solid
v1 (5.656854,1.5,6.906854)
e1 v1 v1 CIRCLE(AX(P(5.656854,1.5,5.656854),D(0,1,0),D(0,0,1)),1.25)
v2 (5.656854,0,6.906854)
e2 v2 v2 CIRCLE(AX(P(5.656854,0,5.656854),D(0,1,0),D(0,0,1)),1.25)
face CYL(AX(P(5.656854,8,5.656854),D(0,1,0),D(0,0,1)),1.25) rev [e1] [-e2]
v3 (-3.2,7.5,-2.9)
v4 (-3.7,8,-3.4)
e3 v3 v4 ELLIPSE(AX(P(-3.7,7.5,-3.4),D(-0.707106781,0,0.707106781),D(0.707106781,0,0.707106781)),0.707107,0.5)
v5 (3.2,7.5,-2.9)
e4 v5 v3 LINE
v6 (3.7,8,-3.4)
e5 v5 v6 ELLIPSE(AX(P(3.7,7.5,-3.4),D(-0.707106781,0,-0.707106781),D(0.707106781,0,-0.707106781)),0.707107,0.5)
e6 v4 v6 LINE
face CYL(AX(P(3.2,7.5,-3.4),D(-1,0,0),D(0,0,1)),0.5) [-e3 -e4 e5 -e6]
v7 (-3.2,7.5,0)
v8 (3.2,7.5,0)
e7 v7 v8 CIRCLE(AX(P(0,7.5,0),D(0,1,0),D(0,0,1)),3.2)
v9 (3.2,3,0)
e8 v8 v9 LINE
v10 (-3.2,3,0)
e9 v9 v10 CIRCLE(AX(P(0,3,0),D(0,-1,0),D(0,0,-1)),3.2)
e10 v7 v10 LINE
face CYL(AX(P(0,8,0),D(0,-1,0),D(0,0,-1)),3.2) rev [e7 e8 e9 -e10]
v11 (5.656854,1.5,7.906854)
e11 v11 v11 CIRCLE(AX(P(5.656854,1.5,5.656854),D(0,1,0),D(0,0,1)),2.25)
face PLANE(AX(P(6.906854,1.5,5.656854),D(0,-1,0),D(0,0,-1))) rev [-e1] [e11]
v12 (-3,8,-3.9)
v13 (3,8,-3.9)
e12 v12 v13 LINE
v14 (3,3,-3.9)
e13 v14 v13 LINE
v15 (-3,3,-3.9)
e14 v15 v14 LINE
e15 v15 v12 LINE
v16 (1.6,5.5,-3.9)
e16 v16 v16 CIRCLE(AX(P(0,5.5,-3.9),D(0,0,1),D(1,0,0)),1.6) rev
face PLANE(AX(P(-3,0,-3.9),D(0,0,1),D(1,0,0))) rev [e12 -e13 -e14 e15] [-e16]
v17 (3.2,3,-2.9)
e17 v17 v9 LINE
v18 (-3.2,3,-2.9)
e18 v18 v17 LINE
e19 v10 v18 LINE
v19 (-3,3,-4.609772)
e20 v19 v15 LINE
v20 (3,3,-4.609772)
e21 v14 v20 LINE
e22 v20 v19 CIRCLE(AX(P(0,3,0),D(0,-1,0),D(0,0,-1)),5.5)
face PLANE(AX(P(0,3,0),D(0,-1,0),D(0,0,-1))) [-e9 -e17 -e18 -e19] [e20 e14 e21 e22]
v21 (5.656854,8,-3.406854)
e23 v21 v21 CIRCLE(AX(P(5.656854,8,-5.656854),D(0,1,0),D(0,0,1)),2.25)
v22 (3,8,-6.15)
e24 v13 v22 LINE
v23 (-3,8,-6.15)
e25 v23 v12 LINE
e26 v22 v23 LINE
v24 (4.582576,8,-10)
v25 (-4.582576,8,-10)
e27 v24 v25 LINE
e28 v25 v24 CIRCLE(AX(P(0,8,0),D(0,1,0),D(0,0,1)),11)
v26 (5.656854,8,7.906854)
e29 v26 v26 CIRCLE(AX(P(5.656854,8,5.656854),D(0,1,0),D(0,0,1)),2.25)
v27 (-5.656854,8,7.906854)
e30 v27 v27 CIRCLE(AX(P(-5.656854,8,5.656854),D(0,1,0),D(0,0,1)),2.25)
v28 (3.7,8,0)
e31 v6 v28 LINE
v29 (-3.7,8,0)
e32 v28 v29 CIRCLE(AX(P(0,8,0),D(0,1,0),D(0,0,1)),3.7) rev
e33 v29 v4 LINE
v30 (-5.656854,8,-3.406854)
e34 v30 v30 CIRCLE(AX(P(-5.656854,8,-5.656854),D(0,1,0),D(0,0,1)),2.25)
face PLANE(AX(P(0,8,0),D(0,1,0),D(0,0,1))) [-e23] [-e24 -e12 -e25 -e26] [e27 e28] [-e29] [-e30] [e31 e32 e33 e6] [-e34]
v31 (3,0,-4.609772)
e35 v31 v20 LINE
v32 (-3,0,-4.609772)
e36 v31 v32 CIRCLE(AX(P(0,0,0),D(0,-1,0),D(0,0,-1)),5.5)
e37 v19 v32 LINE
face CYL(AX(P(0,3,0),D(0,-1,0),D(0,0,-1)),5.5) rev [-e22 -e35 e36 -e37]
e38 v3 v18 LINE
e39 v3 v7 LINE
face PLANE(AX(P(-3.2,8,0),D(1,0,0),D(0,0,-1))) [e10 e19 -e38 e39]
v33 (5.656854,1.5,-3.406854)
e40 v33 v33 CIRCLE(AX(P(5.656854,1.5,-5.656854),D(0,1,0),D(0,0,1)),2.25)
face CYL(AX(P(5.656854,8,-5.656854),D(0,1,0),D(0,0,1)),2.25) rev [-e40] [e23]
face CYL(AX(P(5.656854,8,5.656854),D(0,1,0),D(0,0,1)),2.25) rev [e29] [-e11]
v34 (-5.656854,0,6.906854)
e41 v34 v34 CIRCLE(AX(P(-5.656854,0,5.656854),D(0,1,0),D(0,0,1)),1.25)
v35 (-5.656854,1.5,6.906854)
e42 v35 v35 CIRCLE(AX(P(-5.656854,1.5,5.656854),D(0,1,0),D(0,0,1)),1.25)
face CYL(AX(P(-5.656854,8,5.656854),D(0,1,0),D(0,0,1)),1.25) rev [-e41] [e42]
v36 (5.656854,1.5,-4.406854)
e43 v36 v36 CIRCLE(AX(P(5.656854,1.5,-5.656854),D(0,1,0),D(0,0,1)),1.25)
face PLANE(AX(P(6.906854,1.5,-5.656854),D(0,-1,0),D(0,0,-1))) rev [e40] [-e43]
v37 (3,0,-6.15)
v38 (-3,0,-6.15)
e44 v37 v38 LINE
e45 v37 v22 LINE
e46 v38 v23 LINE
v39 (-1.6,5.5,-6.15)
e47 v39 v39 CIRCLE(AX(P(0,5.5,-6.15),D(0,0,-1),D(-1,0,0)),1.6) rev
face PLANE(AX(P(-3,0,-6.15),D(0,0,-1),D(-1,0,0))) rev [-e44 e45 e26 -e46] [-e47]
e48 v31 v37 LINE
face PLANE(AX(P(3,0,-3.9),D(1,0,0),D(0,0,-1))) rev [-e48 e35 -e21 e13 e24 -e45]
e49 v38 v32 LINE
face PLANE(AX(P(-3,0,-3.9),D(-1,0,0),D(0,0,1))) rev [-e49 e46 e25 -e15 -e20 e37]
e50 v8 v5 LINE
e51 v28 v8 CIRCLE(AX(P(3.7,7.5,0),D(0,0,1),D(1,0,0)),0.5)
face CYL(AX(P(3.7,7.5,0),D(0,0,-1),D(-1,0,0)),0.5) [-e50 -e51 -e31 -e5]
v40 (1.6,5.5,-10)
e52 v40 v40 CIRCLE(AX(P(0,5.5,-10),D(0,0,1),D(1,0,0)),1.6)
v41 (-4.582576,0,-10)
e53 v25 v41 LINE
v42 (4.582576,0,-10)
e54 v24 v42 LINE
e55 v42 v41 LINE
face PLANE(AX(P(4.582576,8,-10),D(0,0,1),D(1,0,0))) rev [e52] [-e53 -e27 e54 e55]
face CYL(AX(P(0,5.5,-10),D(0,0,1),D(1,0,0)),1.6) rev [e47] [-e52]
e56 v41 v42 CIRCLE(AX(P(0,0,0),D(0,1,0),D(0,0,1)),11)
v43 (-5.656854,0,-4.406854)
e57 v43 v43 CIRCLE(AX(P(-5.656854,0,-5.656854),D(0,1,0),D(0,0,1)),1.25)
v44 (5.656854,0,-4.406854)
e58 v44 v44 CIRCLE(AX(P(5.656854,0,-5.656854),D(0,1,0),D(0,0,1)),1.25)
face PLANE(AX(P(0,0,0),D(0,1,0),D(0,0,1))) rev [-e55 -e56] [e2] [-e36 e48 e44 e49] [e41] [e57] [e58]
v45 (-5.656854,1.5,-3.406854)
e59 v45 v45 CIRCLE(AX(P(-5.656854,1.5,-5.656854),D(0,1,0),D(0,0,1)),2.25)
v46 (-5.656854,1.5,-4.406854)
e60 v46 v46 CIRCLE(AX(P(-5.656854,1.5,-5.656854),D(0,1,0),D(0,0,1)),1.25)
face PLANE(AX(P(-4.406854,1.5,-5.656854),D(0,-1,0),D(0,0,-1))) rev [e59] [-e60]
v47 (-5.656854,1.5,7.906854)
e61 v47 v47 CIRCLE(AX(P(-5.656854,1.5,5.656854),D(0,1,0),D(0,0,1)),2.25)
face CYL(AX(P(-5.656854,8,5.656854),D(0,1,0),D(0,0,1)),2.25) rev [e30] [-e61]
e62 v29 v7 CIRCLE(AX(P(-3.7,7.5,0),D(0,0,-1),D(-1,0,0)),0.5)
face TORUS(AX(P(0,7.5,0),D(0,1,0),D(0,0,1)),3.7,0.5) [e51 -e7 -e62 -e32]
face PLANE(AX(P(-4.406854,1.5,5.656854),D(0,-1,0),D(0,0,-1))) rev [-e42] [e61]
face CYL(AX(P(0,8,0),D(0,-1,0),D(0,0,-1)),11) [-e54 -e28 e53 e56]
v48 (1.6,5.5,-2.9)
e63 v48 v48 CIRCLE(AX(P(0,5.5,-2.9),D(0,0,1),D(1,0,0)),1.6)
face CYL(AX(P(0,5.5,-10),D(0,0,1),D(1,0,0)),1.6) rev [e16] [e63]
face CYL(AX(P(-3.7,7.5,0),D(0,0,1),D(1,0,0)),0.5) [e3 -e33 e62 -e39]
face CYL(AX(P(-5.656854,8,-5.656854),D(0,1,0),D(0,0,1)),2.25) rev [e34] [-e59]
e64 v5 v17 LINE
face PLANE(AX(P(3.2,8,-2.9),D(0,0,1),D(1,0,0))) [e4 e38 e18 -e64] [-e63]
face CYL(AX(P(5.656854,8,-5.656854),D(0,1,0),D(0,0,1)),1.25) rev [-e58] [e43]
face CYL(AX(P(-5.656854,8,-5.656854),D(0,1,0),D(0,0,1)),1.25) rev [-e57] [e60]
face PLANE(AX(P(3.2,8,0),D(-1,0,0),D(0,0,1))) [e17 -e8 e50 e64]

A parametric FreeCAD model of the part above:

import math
import FreeCAD as App
import Part
import Sketcher
Q = App.Units.Quantity


def edges_at(feature, points):
    """Names of the edges that pass closest to the given points."""
    edges = feature.Shape.Edges
    near = lambda p: min(range(len(edges)), key=lambda i: edges[i].distToShape(Part.Vertex(*p))[0])
    return sorted({f"Edge{near(p) + 1}" for p in points})


def add_polygon(sketch, points):
    """Adds a closed chain of lines whose ends are joined by coincident constraints."""
    first, n = sketch.GeometryCount, len(points)
    for a, b in zip(points, points[1:] + points[:1]):
        sketch.addGeometry(Part.LineSegment(App.Vector(*a, 0), App.Vector(*b, 0)), False)
    for i in range(n):
        sketch.addConstraint(Sketcher.Constraint("Coincident", first + i, 2, first + (i + 1) % n, 1))

doc = App.newDocument("Part")
params = doc.addObject("Spreadsheet::Sheet", "Params")
for row, (alias, value) in enumerate([
    ("sketch1_radius", "11 mm"),
    ("sketch1_radius2", "3.2 mm"),
    ("sketch1_height", "2.9 mm"),
    ("pad1_length", "8 mm"),
    ("sketch2_diameter", "2.5 mm"),
    ("hole_diameter", "2.5 mm"),
    ("hole_cbore_diameter", "4.5 mm"),
    ("hole_cbore_depth", "6.5 mm"),
    ("fillet_radius", "0.5 mm"),
    ("sketch3_diameter", "3.2 mm"),
    ("sketch4_width", "6 mm"),
    ("sketch4_height", "2.25 mm"),
    ("sketch5_diameter", "11 mm"),
    ("pocket3_length", "3 mm"),
], start=1):
    params.set(f"A{row}", alias)
    params.set(f"B{row}", "=" + value)
    params.setAlias(f"B{row}", alias)

body = doc.addObject("PartDesign::Body", "Body")

# Sketch on XZ plane
sketch1 = body.newObject("Sketcher::SketchObject", "Sketch")
sketch1.AttachmentSupport = (doc.getObject("XZ_Plane"), [""])
sketch1.MapMode = "FlatFace"
sketch1.addGeometry(Part.LineSegment(App.Vector(4.582576, -10, 0), App.Vector(-4.582576, -10, 0)), False)
sketch1.addGeometry(Part.ArcOfCircle(Part.Circle(App.Vector(0, 0, 0), App.Vector(0, 0, 1), 11), math.radians(-65.380023), math.radians(245.380023)), False)
sketch1.addGeometry(Part.ArcOfCircle(Part.Circle(App.Vector(0, 0, 0), App.Vector(0, 0, 1), 3.2), math.radians(0), math.radians(180)), False)
sketch1.addGeometry(Part.LineSegment(App.Vector(-3.2, 0, 0), App.Vector(-3.2, -2.9, 0)), False)
sketch1.addGeometry(Part.LineSegment(App.Vector(-3.2, -2.9, 0), App.Vector(3.2, -2.9, 0)), False)
sketch1.addGeometry(Part.LineSegment(App.Vector(3.2, -2.9, 0), App.Vector(3.2, 0, 0)), False)
sketch1.addConstraint(Sketcher.Constraint("Coincident", 0, 1, 1, 1))
sketch1.addConstraint(Sketcher.Constraint("Coincident", 1, 2, 0, 2))
sketch1.addConstraint(Sketcher.Constraint("Tangent", 2, 2, 3, 1))
sketch1.addConstraint(Sketcher.Constraint("Coincident", 3, 2, 4, 1))
sketch1.addConstraint(Sketcher.Constraint("Coincident", 4, 2, 5, 1))
sketch1.addConstraint(Sketcher.Constraint("Tangent", 5, 2, 2, 1))
sketch1.addConstraint(Sketcher.Constraint("Horizontal", 0))
sketch1.addConstraint(Sketcher.Constraint("Vertical", 3))
sketch1.addConstraint(Sketcher.Constraint("Horizontal", 4))
sketch1.addConstraint(Sketcher.Constraint("Vertical", 5))
sketch1.addConstraint(Sketcher.Constraint("Coincident", 1, 3, -1, 1))
sketch1.addConstraint(Sketcher.Constraint("Coincident", 2, 3, -1, 1))
sketch1.addConstraint(Sketcher.Constraint("Radius", 1, Q("11 mm")))
sketch1.addConstraint(Sketcher.Constraint("Radius", 2, Q("3.2 mm")))
sketch1.addConstraint(Sketcher.Constraint("DistanceY", 3, 2, 3, 1, Q("2.9 mm")))
sketch1.addConstraint(Sketcher.Constraint("DistanceY", 0, 1, -1, 1, Q("10 mm")))
sketch1.setExpression("Constraints[12]", "Params.sketch1_radius")
sketch1.setExpression("Constraints[13]", "Params.sketch1_radius2")
sketch1.setExpression("Constraints[14]", "Params.sketch1_height")
pad1 = body.newObject("PartDesign::Pad", "Pad")
pad1.Profile = sketch1
pad1.setExpression("Length", "Params.pad1_length")
pad1.Reversed = True

# Sketch on XZ plane
sketch2 = body.newObject("Sketcher::SketchObject", "Sketch001")
sketch2.AttachmentSupport = (doc.getObject("XZ_Plane"), [""])
sketch2.MapMode = "FlatFace"
sketch2.AttachmentOffset = App.Placement(App.Vector(0, 0, -8), App.Rotation())
sketch2.addGeometry(Part.Circle(App.Vector(5.656854, -5.656854, 0), App.Vector(0, 0, 1), 1.25), False)
sketch2.addGeometry(Part.Circle(App.Vector(5.656854, 5.656854, 0), App.Vector(0, 0, 1), 1.25), False)
sketch2.addGeometry(Part.Circle(App.Vector(-5.656854, 5.656854, 0), App.Vector(0, 0, 1), 1.25), False)
sketch2.addGeometry(Part.Circle(App.Vector(-5.656854, -5.656854, 0), App.Vector(0, 0, 1), 1.25), False)
sketch2.addGeometry(Part.Circle(App.Vector(0, 0, 0), App.Vector(0, 0, 1), 1.25), False)
sketch2.addConstraint(Sketcher.Constraint("Coincident", 4, 3, -1, 1))
sketch2.addConstraint(Sketcher.Constraint("Equal", 0, 1))
sketch2.addConstraint(Sketcher.Constraint("Equal", 1, 2))
sketch2.addConstraint(Sketcher.Constraint("Equal", 2, 3))
sketch2.addConstraint(Sketcher.Constraint("Equal", 3, 4))
sketch2.addConstraint(Sketcher.Constraint("Symmetric", 0, 3, 2, 3, -1, 1))
sketch2.addConstraint(Sketcher.Constraint("Symmetric", 1, 3, 3, 3, -1, 1))
sketch2.addConstraint(Sketcher.Constraint("Symmetric", 1, 3, 2, 3, -2))
sketch2.addConstraint(Sketcher.Constraint("Diameter", 0, Q("2.5 mm")))
sketch2.addConstraint(Sketcher.Constraint("DistanceY", 0, 3, 1, 3, Q("11.313708 mm")))
sketch2.addConstraint(Sketcher.Constraint("DistanceX", 2, 3, 1, 3, Q("11.313708 mm")))
sketch2.setExpression("Constraints[8]", "Params.sketch2_diameter")
doc.recompute()
hole = body.newObject("PartDesign::Hole", "Hole")
hole.Profile = sketch2
hole.ThreadType = "None"
hole.setExpression("Diameter", "Params.hole_diameter")
hole.DepthType = "ThroughAll"
hole.HoleCutType = "Counterbore"
hole.setExpression("HoleCutDiameter", "Params.hole_cbore_diameter")
hole.setExpression("HoleCutDepth", "Params.hole_cbore_depth")
hole.Reversed = True
doc.recompute()

fillet = body.newObject("PartDesign::Fillet", "Fillet")
fillet.Base = (hole, edges_at(hole, [
    (0, 8, 3.2),
    (3.2, 8, -1.45),
    (0, 8, -2.9),
    (-3.2, 8, -1.45),
]))
fillet.setExpression("Radius", "Params.fillet_radius")

# Sketch on XY plane
sketch3 = body.newObject("Sketcher::SketchObject", "Sketch002")
sketch3.AttachmentSupport = (doc.getObject("XY_Plane"), [""])
sketch3.MapMode = "FlatFace"
sketch3.addGeometry(Part.Circle(App.Vector(0, 5.5, 0), App.Vector(0, 0, 1), 1.6), False)
sketch3.addConstraint(Sketcher.Constraint("PointOnObject", 0, 3, -2))
sketch3.addConstraint(Sketcher.Constraint("Diameter", 0, Q("3.2 mm")))
sketch3.addConstraint(Sketcher.Constraint("DistanceY", -1, 1, 0, 3, Q("5.5 mm")))
sketch3.setExpression("Constraints[1]", "Params.sketch3_diameter")
pocket1 = body.newObject("PartDesign::Pocket", "Pocket")
pocket1.Profile = sketch3
pocket1.Type = "ThroughAll"

# Sketch on XZ plane
sketch4 = body.newObject("Sketcher::SketchObject", "Sketch003")
sketch4.AttachmentSupport = (doc.getObject("XZ_Plane"), [""])
sketch4.MapMode = "FlatFace"
sketch4.AttachmentOffset = App.Placement(App.Vector(0, 0, -8), App.Rotation())
add_polygon(sketch4, [(-3, -6.15), (-3, -3.9), (3, -3.9), (3, -6.15)])  # lines 0-3
sketch4.addConstraint(Sketcher.Constraint("Vertical", 0))
sketch4.addConstraint(Sketcher.Constraint("Horizontal", 1))
sketch4.addConstraint(Sketcher.Constraint("Vertical", 2))
sketch4.addConstraint(Sketcher.Constraint("Horizontal", 3))
sketch4.addConstraint(Sketcher.Constraint("DistanceX", 1, 1, 1, 2, Q("6 mm")))
sketch4.addConstraint(Sketcher.Constraint("DistanceX", 0, 2, -1, 1, Q("3 mm")))
sketch4.addConstraint(Sketcher.Constraint("DistanceY", 0, 1, 0, 2, Q("2.25 mm")))
sketch4.addConstraint(Sketcher.Constraint("DistanceY", 0, 2, -1, 1, Q("3.9 mm")))
sketch4.setExpression("Constraints[8]", "Params.sketch4_width")
sketch4.setExpression("Constraints[10]", "Params.sketch4_height")
pocket2 = body.newObject("PartDesign::Pocket", "Pocket001")
pocket2.Profile = sketch4
pocket2.Type = "ThroughAll"
pocket2.Reversed = True

# Sketch on XZ plane
sketch5 = body.newObject("Sketcher::SketchObject", "Sketch004")
sketch5.AttachmentSupport = (doc.getObject("XZ_Plane"), [""])
sketch5.MapMode = "FlatFace"
sketch5.addGeometry(Part.Circle(App.Vector(0, 0, 0), App.Vector(0, 0, 1), 5.5), False)
sketch5.addConstraint(Sketcher.Constraint("Coincident", 0, 3, -1, 1))
sketch5.addConstraint(Sketcher.Constraint("Diameter", 0, Q("11 mm")))
sketch5.setExpression("Constraints[1]", "Params.sketch5_diameter")
pocket3 = body.newObject("PartDesign::Pocket", "Pocket002")
pocket3.Profile = sketch5
pocket3.setExpression("Length", "Params.pocket3_length")

doc.recompute()
